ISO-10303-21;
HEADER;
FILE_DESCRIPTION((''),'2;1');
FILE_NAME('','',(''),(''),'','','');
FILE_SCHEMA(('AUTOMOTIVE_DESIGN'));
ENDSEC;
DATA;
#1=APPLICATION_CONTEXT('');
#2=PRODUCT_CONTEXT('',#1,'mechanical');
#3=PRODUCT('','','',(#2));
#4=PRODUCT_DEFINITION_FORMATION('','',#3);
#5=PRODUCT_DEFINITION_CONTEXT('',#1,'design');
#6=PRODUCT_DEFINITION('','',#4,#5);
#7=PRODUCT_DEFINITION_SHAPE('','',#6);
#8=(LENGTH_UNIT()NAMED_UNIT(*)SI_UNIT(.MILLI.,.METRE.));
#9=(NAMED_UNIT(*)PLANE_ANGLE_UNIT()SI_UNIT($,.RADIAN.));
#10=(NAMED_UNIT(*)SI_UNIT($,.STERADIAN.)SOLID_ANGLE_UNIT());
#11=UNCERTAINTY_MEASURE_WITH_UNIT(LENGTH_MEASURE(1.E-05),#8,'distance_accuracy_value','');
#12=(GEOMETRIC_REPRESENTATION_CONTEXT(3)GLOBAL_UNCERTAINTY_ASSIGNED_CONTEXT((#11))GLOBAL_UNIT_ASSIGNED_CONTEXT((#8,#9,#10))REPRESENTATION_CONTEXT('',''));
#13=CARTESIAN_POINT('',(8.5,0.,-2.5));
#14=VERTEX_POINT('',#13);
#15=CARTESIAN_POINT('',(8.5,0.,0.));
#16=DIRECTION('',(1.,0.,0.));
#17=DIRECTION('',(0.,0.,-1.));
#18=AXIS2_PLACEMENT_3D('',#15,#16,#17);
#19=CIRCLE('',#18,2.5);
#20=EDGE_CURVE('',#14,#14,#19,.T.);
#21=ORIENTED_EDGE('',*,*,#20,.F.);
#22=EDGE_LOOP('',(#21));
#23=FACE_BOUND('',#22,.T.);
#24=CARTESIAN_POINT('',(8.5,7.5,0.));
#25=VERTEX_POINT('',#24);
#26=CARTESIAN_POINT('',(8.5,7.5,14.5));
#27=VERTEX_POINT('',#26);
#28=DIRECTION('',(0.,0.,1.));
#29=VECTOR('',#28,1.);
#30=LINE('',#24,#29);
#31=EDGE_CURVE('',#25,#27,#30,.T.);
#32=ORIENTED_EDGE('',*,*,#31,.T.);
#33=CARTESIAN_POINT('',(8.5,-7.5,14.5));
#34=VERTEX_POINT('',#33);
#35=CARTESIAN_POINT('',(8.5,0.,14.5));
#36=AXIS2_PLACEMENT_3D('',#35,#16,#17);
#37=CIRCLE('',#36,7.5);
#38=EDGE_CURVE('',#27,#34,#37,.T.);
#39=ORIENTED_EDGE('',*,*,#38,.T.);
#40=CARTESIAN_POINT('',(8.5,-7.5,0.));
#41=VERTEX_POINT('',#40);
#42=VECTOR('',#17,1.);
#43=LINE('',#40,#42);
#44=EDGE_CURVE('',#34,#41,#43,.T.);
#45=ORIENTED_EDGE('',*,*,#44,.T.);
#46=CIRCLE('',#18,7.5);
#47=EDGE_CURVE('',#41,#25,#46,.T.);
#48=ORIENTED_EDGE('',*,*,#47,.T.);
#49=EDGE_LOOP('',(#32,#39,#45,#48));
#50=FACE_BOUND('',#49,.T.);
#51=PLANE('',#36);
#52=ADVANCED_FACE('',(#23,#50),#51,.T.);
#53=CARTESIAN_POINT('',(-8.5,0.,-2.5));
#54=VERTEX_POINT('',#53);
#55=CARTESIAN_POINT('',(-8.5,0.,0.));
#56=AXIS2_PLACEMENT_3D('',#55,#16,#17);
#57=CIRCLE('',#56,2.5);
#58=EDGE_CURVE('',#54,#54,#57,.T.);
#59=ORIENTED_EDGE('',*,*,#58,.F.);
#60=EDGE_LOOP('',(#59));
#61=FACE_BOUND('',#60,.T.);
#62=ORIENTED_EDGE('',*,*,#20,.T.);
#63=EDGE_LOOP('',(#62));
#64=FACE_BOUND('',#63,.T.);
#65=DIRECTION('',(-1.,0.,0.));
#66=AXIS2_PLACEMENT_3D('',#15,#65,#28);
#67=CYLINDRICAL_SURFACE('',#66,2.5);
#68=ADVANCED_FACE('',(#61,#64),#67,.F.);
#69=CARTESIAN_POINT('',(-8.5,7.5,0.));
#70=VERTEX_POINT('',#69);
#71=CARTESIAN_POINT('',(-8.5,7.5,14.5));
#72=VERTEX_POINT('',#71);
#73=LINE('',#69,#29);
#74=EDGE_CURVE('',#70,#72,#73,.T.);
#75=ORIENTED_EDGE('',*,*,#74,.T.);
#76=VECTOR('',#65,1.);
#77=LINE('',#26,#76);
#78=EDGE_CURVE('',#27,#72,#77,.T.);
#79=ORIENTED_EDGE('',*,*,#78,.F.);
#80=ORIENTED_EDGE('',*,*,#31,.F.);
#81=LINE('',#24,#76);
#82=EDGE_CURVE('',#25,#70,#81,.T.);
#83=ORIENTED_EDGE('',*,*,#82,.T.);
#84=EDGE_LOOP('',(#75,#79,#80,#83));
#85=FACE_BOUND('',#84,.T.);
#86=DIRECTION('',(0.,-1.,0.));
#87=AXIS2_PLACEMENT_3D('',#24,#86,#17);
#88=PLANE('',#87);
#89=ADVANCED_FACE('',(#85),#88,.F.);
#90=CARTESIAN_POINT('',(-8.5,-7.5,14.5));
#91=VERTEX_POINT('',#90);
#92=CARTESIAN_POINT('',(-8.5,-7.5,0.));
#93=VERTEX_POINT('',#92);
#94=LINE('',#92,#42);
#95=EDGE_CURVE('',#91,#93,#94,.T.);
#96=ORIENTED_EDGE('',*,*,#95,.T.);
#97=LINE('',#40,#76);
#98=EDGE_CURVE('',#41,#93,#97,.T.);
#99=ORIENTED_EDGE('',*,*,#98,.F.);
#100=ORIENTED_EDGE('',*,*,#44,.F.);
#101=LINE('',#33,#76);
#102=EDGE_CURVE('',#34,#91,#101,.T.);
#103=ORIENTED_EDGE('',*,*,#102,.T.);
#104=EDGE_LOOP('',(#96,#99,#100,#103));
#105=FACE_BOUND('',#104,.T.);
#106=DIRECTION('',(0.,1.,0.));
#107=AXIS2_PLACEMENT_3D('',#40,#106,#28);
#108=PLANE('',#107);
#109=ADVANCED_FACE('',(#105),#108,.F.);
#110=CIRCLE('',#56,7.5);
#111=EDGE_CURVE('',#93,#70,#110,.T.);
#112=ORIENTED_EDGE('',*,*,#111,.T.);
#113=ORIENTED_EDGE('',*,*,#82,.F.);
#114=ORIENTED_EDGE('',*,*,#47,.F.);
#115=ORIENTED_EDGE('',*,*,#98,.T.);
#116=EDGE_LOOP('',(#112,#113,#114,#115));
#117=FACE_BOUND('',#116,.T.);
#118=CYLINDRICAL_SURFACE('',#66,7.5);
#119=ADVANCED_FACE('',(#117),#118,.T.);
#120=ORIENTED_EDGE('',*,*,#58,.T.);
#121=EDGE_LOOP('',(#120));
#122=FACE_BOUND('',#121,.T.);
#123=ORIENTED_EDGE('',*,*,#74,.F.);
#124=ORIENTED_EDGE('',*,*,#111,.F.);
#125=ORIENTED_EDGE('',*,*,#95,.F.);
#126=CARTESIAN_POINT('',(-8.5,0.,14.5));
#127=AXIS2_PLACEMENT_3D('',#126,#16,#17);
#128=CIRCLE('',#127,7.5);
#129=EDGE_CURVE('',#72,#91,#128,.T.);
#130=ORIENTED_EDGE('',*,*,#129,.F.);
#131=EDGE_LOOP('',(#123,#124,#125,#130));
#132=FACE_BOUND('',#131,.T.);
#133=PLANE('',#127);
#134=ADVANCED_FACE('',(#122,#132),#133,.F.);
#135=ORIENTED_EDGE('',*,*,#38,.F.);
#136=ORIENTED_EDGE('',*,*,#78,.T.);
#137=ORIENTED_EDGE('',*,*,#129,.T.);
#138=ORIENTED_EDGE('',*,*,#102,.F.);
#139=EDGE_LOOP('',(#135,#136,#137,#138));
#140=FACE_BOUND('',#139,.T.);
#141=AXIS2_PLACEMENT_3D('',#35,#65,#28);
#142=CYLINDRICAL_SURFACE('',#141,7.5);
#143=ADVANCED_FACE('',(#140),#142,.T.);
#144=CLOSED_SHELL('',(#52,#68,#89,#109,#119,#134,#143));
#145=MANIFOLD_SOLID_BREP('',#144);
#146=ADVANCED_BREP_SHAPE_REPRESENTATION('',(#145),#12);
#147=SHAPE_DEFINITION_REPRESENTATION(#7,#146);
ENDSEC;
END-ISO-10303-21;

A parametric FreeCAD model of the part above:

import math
import FreeCAD as App
import Part
import Sketcher

V = App.Vector

doc = App.newDocument("Part")
params = doc.addObject("Spreadsheet::Sheet", "Params")
for row, (alias, value) in enumerate([
    ("sketch1_diameter", "5 mm"),
    ("sketch1_radius", "7.5 mm"),
    ("sketch1_height", "14.5 mm"),
    ("pad1_length", "17 mm"),
], start=1):
    params.set(f"A{row}", alias)
    params.set(f"B{row}", "=" + value)
    params.setAlias(f"B{row}", alias)

body = doc.addObject("PartDesign::Body", "Body")

sketch1 = body.newObject("Sketcher::SketchObject", "Sketch")
sketch1.AttachmentSupport = (doc.getObject("YZ_Plane"), [""])
sketch1.MapMode = "FlatFace"
sketch1.addGeometry([
    Part.LineSegment(V(7.5, 0, 0), V(7.5, 14.5, 0)),
    Part.ArcOfCircle(Part.Circle(V(0, 14.5, 0), V(0, 0, 1), 7.5), math.radians(0), math.radians(180)),
    Part.LineSegment(V(-7.5, 14.5, 0), V(-7.5, 0, 0)),
    Part.ArcOfCircle(Part.Circle(V(0, 0, 0), V(0, 0, 1), 7.5), math.radians(180), math.radians(360)),
    Part.Circle(V(0, 0, 0), V(0, 0, 1), 2.5),
], False)
sketch1.addConstraint([
    Sketcher.Constraint("Tangent", 0, 2, 1, 1),
    Sketcher.Constraint("Tangent", 1, 2, 2, 1),
    Sketcher.Constraint("Tangent", 2, 2, 3, 1),
    Sketcher.Constraint("Tangent", 3, 2, 0, 1),
    Sketcher.Constraint("Vertical", 0),
    Sketcher.Constraint("Vertical", 2),
    Sketcher.Constraint("Coincident", 3, 3, -1, 1),
    Sketcher.Constraint("Coincident", 4, 3, -1, 1),
    Sketcher.Constraint("Diameter", 4, 5.0),
    Sketcher.Constraint("Radius", 1, 7.5),
    Sketcher.Constraint("DistanceY", 0, 1, 0, 2, 14.5),
])
sketch1.setExpression("Constraints[8]", "Params.sketch1_diameter")
sketch1.setExpression("Constraints[9]", "Params.sketch1_radius")
sketch1.setExpression("Constraints[10]", "Params.sketch1_height")
pad1 = body.newObject("PartDesign::Pad", "Pad")
pad1.Profile = sketch1
pad1.setExpression("Length", "Params.pad1_length")
pad1.Midplane = True

doc.recompute()
